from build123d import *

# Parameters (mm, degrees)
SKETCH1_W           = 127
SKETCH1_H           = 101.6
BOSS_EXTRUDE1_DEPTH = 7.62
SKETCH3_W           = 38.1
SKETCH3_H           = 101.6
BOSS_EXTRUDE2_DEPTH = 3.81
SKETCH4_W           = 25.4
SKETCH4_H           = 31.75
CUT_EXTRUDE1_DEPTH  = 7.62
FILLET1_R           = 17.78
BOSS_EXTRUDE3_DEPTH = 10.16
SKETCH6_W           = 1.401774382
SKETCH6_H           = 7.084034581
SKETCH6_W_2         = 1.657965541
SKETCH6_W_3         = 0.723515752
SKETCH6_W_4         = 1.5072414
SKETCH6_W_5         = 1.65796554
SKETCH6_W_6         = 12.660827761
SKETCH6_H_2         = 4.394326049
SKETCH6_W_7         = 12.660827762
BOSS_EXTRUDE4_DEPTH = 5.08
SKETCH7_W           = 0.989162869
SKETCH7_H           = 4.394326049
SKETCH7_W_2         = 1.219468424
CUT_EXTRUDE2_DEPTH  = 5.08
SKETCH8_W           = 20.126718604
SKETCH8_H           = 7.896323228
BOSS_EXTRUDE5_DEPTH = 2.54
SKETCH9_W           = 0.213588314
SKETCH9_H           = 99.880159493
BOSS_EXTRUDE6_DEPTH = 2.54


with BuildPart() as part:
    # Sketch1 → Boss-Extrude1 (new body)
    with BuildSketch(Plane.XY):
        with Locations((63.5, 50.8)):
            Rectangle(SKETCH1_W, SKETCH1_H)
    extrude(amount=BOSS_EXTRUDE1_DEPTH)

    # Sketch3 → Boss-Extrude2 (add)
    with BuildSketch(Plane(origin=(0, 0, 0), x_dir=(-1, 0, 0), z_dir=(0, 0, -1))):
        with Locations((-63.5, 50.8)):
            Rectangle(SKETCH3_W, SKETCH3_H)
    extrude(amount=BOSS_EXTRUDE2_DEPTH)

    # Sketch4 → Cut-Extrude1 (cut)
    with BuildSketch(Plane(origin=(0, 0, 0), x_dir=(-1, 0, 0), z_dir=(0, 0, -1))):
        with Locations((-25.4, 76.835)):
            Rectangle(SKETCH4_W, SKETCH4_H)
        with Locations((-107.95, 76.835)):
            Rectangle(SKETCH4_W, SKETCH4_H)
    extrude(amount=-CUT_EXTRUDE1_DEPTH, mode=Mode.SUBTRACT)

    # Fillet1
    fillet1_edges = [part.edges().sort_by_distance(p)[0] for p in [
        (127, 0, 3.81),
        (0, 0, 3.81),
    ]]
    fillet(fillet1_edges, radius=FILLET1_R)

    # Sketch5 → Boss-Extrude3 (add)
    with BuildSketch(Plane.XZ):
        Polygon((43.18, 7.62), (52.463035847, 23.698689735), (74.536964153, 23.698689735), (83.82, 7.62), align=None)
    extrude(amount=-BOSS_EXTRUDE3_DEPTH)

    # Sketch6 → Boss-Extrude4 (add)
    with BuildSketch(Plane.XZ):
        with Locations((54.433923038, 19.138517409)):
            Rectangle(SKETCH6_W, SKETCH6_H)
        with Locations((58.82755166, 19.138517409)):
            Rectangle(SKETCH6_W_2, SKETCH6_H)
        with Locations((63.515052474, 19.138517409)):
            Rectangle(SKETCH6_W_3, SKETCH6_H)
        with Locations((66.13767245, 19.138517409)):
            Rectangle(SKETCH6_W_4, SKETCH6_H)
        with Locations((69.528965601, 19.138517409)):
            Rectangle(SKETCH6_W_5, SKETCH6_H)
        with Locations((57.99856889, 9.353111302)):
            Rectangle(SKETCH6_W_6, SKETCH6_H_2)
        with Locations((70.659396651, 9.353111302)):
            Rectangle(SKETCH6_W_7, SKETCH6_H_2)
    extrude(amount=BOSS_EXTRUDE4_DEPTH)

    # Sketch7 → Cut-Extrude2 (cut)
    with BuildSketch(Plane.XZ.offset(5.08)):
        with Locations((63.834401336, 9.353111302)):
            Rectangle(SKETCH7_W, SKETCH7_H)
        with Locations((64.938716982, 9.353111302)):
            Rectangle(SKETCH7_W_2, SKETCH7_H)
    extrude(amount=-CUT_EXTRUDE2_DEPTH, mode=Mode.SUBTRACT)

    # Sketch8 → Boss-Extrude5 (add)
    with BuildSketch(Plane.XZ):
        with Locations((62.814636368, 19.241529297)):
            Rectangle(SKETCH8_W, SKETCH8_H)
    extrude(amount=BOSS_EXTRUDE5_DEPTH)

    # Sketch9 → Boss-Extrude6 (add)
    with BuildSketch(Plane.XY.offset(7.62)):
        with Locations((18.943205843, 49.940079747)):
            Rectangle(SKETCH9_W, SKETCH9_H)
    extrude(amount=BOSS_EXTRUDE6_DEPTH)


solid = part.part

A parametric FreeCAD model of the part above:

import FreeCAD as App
import Part
import Sketcher
Q = App.Units.Quantity


def edges_at(feature, points):
    """Names of the edges that pass closest to the given points."""
    edges = feature.Shape.Edges
    near = lambda p: min(range(len(edges)), key=lambda i: edges[i].distToShape(Part.Vertex(*p))[0])
    return sorted({f"Edge{near(p) + 1}" for p in points})

doc = App.newDocument("Part")
params = doc.addObject("Spreadsheet::Sheet", "Params")
for row, (alias, value) in enumerate([
    ("sketch1_width", "5 in"),
    ("sketch1_height", "4 in"),
    ("pad1_length", "0.3 in"),
    ("sketch2_height", "4 in"),
    ("sketch2_width", "1.5 in"),
    ("pad2_length", "0.15 in"),
    ("sketch3_width", "1 in"),
    ("sketch3_height", "1.25 in"),
    ("pocket1_length", "0.3 in"),
    ("fillet_radius", "0.7 in"),
    ("sketch4_width", "1.6 in"),
    ("pad3_length", "0.4 in"),
    ("pad4_length", "0.2 in"),
    ("pocket2_length", "0.2 in"),
    ("pad5_length", "0.1 in"),
    ("pad6_length", "0.1 in"),
], start=1):
    params.set(f"A{row}", alias)
    params.set(f"B{row}", "=" + value)
    params.setAlias(f"B{row}", alias)

body = doc.addObject("PartDesign::Body", "Body")

sketch1 = doc.addObject("Sketcher::SketchObject", "Sketch")
body.addObject(sketch1)
sketch1.AttachmentSupport = (doc.XY_Plane, [""])
sketch1.MapMode = "FlatFace"
sketch1.addGeometry([
    Part.LineSegment(App.Vector(0, 102, 0), App.Vector(0, 0, 0)),
    Part.LineSegment(App.Vector(0, 0, 0), App.Vector(127, 0, 0)),
    Part.LineSegment(App.Vector(127, 0, 0), App.Vector(127, 102, 0)),
    Part.LineSegment(App.Vector(127, 102, 0), App.Vector(0, 102, 0)),
], False)
sketch1.addConstraint([
    Sketcher.Constraint("Coincident", 0, 2, 1, 1),
    Sketcher.Constraint("Coincident", 1, 2, 2, 1),
    Sketcher.Constraint("Coincident", 2, 2, 3, 1),
    Sketcher.Constraint("Coincident", 3, 2, 0, 1),
    Sketcher.Constraint("Vertical", 0),
    Sketcher.Constraint("Horizontal", 1),
    Sketcher.Constraint("Vertical", 2),
    Sketcher.Constraint("Horizontal", 3),
    Sketcher.Constraint("Coincident", 0, 2, -1, 1),
    Sketcher.Constraint("DistanceX", 1, 1, 1, 2, Q("5 in")),
    Sketcher.Constraint("DistanceY", 0, 2, 0, 1, Q("4 in")),
])
sketch1.setExpression("Constraints[9]", "Params.sketch1_width")
sketch1.setExpression("Constraints[10]", "Params.sketch1_height")
pad1 = doc.addObject("PartDesign::Pad", "Pad")
body.addObject(pad1)
pad1.Profile = sketch1
pad1.setExpression("Length", "Params.pad1_length")

sketch2 = doc.addObject("Sketcher::SketchObject", "Sketch001")
body.addObject(sketch2)
sketch2.AttachmentSupport = (doc.XY_Plane, [""])
sketch2.MapMode = "FlatFace"
sketch2.addGeometry([
    Part.LineSegment(App.Vector(83, 102, 0), App.Vector(83, 0, 0)),
    Part.LineSegment(App.Vector(83, 0, 0), App.Vector(44, 0, 0)),
    Part.LineSegment(App.Vector(44, 0, 0), App.Vector(44, 102, 0)),
    Part.LineSegment(App.Vector(44, 102, 0), App.Vector(83, 102, 0)),
], False)
sketch2.addConstraint([
    Sketcher.Constraint("Coincident", 0, 2, 1, 1),
    Sketcher.Constraint("Coincident", 1, 2, 2, 1),
    Sketcher.Constraint("Coincident", 2, 2, 3, 1),
    Sketcher.Constraint("Coincident", 3, 2, 0, 1),
    Sketcher.Constraint("Vertical", 0),
    Sketcher.Constraint("Horizontal", 1),
    Sketcher.Constraint("Vertical", 2),
    Sketcher.Constraint("Horizontal", 3),
    Sketcher.Constraint("PointOnObject", 0, 2, -1),
    Sketcher.Constraint("DistanceY", 0, 2, 0, 1, Q("4 in")),
    Sketcher.Constraint("DistanceX", 1, 2, 1, 1, Q("1.5 in")),
    Sketcher.Constraint("DistanceX", -1, 1, 0, 2, Q("3.25 in")),
])
sketch2.setExpression("Constraints[9]", "Params.sketch2_height")
sketch2.setExpression("Constraints[10]", "Params.sketch2_width")
pad2 = doc.addObject("PartDesign::Pad", "Pad001")
body.addObject(pad2)
pad2.Profile = sketch2
pad2.setExpression("Length", "Params.pad2_length")
pad2.Reversed = True

sketch3 = doc.addObject("Sketcher::SketchObject", "Sketch002")
body.addObject(sketch3)
sketch3.AttachmentSupport = (doc.XY_Plane, [""])
sketch3.MapMode = "FlatFace"
sketch3.addGeometry([
    Part.LineSegment(App.Vector(38, 93, 0), App.Vector(38, 61, 0)),
    Part.LineSegment(App.Vector(38, 61, 0), App.Vector(13, 61, 0)),
    Part.LineSegment(App.Vector(13, 61, 0), App.Vector(13, 93, 0)),
    Part.LineSegment(App.Vector(13, 93, 0), App.Vector(38, 93, 0)),
    Part.LineSegment(App.Vector(121, 93, 0), App.Vector(121, 61, 0)),
    Part.LineSegment(App.Vector(121, 61, 0), App.Vector(95, 61, 0)),
    Part.LineSegment(App.Vector(95, 61, 0), App.Vector(95, 93, 0)),
    Part.LineSegment(App.Vector(95, 93, 0), App.Vector(121, 93, 0)),
], False)
sketch3.addConstraint([
    Sketcher.Constraint("Coincident", 0, 2, 1, 1),
    Sketcher.Constraint("Coincident", 1, 2, 2, 1),
    Sketcher.Constraint("Coincident", 2, 2, 3, 1),
    Sketcher.Constraint("Coincident", 3, 2, 0, 1),
    Sketcher.Constraint("Coincident", 4, 2, 5, 1),
    Sketcher.Constraint("Coincident", 5, 2, 6, 1),
    Sketcher.Constraint("Coincident", 6, 2, 7, 1),
    Sketcher.Constraint("Coincident", 7, 2, 4, 1),
    Sketcher.Constraint("Vertical", 0),
    Sketcher.Constraint("Horizontal", 1),
    Sketcher.Constraint("Vertical", 2),
    Sketcher.Constraint("Horizontal", 3),
    Sketcher.Constraint("Vertical", 4),
    Sketcher.Constraint("Horizontal", 5),
    Sketcher.Constraint("Vertical", 6),
    Sketcher.Constraint("Horizontal", 7),
    Sketcher.Constraint("Horizontal", 1, 2, 4, 2),
    Sketcher.Constraint("Horizontal", 3, 2, 6, 2),
    Sketcher.Constraint("Equal", 3, 5),
    Sketcher.Constraint("DistanceX", 1, 2, 1, 1, Q("1 in")),
    Sketcher.Constraint("DistanceY", 0, 2, 0, 1, Q("1.25 in")),
    Sketcher.Constraint("DistanceX", -1, 1, 0, 2, Q("1.5 in")),
    Sketcher.Constraint("DistanceY", -1, 1, 0, 2, Q("2.4 in")),
    Sketcher.Constraint("DistanceX", -1, 1, 4, 2, Q("4.75 in")),
])
sketch3.setExpression("Constraints[19]", "Params.sketch3_width")
sketch3.setExpression("Constraints[20]", "Params.sketch3_height")
pocket1 = doc.addObject("PartDesign::Pocket", "Pocket")
body.addObject(pocket1)
pocket1.Profile = sketch3
pocket1.setExpression("Length", "Params.pocket1_length")
pocket1.Reversed = True
doc.recompute()

fillet = doc.addObject("PartDesign::Fillet", "Fillet")
body.addObject(fillet)
fillet.Base = (pocket1, edges_at(pocket1, [(127, 0, 3.81), (0, 0, 3.81)]))
fillet.setExpression("Radius", "Params.fillet_radius")

sketch4 = doc.addObject("Sketcher::SketchObject", "Sketch003")
body.addObject(sketch4)
sketch4.AttachmentSupport = (doc.XZ_Plane, [""])
sketch4.MapMode = "FlatFace"
sketch4.addGeometry([
    Part.LineSegment(App.Vector(52, 24, 0), App.Vector(43, 8, 0)),
    Part.LineSegment(App.Vector(43, 8, 0), App.Vector(84, 8, 0)),
    Part.LineSegment(App.Vector(84, 8, 0), App.Vector(75, 24, 0)),
    Part.LineSegment(App.Vector(75, 24, 0), App.Vector(52, 24, 0)),
], False)
sketch4.addConstraint([
    Sketcher.Constraint("Coincident", 0, 2, 1, 1),
    Sketcher.Constraint("Coincident", 1, 2, 2, 1),
    Sketcher.Constraint("Coincident", 2, 2, 3, 1),
    Sketcher.Constraint("Coincident", 3, 2, 0, 1),
    Sketcher.Constraint("Horizontal", 1),
    Sketcher.Constraint("Horizontal", 3),
    Sketcher.Constraint("Equal", 0, 2),
    Sketcher.Constraint("DistanceX", 1, 1, 1, 2, Q("1.6 in")),
    Sketcher.Constraint("Angle", 0, Q("-120 deg")),
    Sketcher.Constraint("DistanceX", -1, 1, 0, 2, Q("1.7 in")),
    Sketcher.Constraint("DistanceY", -1, 1, 0, 2, Q("0.3 in")),
    Sketcher.Constraint("DistanceX", 3, 2, 3, 1, Q("22.073928 mm")),
])
sketch4.setExpression("Constraints[7]", "Params.sketch4_width")
pad3 = doc.addObject("PartDesign::Pad", "Pad002")
body.addObject(pad3)
pad3.Profile = sketch4
pad3.setExpression("Length", "Params.pad3_length")
pad3.Reversed = True

sketch5 = doc.addObject("Sketcher::SketchObject", "Sketch004")
body.addObject(sketch5)
sketch5.AttachmentSupport = (doc.XZ_Plane, [""])
sketch5.MapMode = "FlatFace"
sketch5.addGeometry([
    Part.LineSegment(App.Vector(53.7, 22.7, 0), App.Vector(53.7, 15.6, 0)),
    Part.LineSegment(App.Vector(53.7, 15.6, 0), App.Vector(55.1, 15.6, 0)),
    Part.LineSegment(App.Vector(55.1, 15.6, 0), App.Vector(55.1, 22.7, 0)),
    Part.LineSegment(App.Vector(55.1, 22.7, 0), App.Vector(53.7, 22.7, 0)),
    Part.LineSegment(App.Vector(58, 22.7, 0), App.Vector(58, 15.6, 0)),
    Part.LineSegment(App.Vector(58, 15.6, 0), App.Vector(59.7, 15.6, 0)),
    Part.LineSegment(App.Vector(59.7, 15.6, 0), App.Vector(59.7, 22.7, 0)),
    Part.LineSegment(App.Vector(59.7, 22.7, 0), App.Vector(58, 22.7, 0)),
    Part.LineSegment(App.Vector(63.2, 22.7, 0), App.Vector(63.2, 15.6, 0)),
    Part.LineSegment(App.Vector(63.2, 15.6, 0), App.Vector(63.9, 15.6, 0)),
    Part.LineSegment(App.Vector(63.9, 15.6, 0), App.Vector(63.9, 22.7, 0)),
    Part.LineSegment(App.Vector(63.9, 22.7, 0), App.Vector(63.2, 22.7, 0)),
    Part.LineSegment(App.Vector(65.4, 22.7, 0), App.Vector(65.4, 15.6, 0)),
    Part.LineSegment(App.Vector(65.4, 15.6, 0), App.Vector(66.9, 15.6, 0)),
    Part.LineSegment(App.Vector(66.9, 15.6, 0), App.Vector(66.9, 22.7, 0)),
    Part.LineSegment(App.Vector(66.9, 22.7, 0), App.Vector(65.4, 22.7, 0)),
    Part.LineSegment(App.Vector(68.7, 22.7, 0), App.Vector(68.7, 15.6, 0)),
    Part.LineSegment(App.Vector(68.7, 15.6, 0), App.Vector(70.4, 15.6, 0)),
    Part.LineSegment(App.Vector(70.4, 15.6, 0), App.Vector(70.4, 22.7, 0)),
    Part.LineSegment(App.Vector(70.4, 22.7, 0), App.Vector(68.7, 22.7, 0)),
    Part.LineSegment(App.Vector(51.7, 11.6, 0), App.Vector(51.7, 7.2, 0)),
    Part.LineSegment(App.Vector(51.7, 7.2, 0), App.Vector(77, 7.2, 0)),
    Part.LineSegment(App.Vector(77, 7.2, 0), App.Vector(77, 11.6, 0)),
    Part.LineSegment(App.Vector(77, 11.6, 0), App.Vector(51.7, 11.6, 0)),
], False)
sketch5.addConstraint([
    Sketcher.Constraint("Coincident", 0, 2, 1, 1),
    Sketcher.Constraint("Coincident", 1, 2, 2, 1),
    Sketcher.Constraint("Coincident", 2, 2, 3, 1),
    Sketcher.Constraint("Coincident", 3, 2, 0, 1),
    Sketcher.Constraint("Coincident", 4, 2, 5, 1),
    Sketcher.Constraint("Coincident", 5, 2, 6, 1),
    Sketcher.Constraint("Coincident", 6, 2, 7, 1),
    Sketcher.Constraint("Coincident", 7, 2, 4, 1),
    Sketcher.Constraint("Coincident", 8, 2, 9, 1),
    Sketcher.Constraint("Coincident", 9, 2, 10, 1),
    Sketcher.Constraint("Coincident", 10, 2, 11, 1),
    Sketcher.Constraint("Coincident", 11, 2, 8, 1),
    Sketcher.Constraint("Coincident", 12, 2, 13, 1),
    Sketcher.Constraint("Coincident", 13, 2, 14, 1),
    Sketcher.Constraint("Coincident", 14, 2, 15, 1),
    Sketcher.Constraint("Coincident", 15, 2, 12, 1),
    Sketcher.Constraint("Coincident", 16, 2, 17, 1),
    Sketcher.Constraint("Coincident", 17, 2, 18, 1),
    Sketcher.Constraint("Coincident", 18, 2, 19, 1),
    Sketcher.Constraint("Coincident", 19, 2, 16, 1),
    Sketcher.Constraint("Coincident", 20, 2, 21, 1),
    Sketcher.Constraint("Coincident", 21, 2, 22, 1),
    Sketcher.Constraint("Coincident", 22, 2, 23, 1),
    Sketcher.Constraint("Coincident", 23, 2, 20, 1),
    Sketcher.Constraint("Vertical", 0),
    Sketcher.Constraint("Horizontal", 1),
    Sketcher.Constraint("Vertical", 2),
    Sketcher.Constraint("Horizontal", 3),
    Sketcher.Constraint("Vertical", 4),
    Sketcher.Constraint("Horizontal", 5),
    Sketcher.Constraint("Vertical", 6),
    Sketcher.Constraint("Horizontal", 7),
    Sketcher.Constraint("Vertical", 8),
    Sketcher.Constraint("Horizontal", 9),
    Sketcher.Constraint("Vertical", 10),
    Sketcher.Constraint("Horizontal", 11),
    Sketcher.Constraint("Vertical", 12),
    Sketcher.Constraint("Horizontal", 13),
    Sketcher.Constraint("Vertical", 14),
    Sketcher.Constraint("Horizontal", 15),
    Sketcher.Constraint("Vertical", 16),
    Sketcher.Constraint("Horizontal", 17),
    Sketcher.Constraint("Vertical", 18),
    Sketcher.Constraint("Horizontal", 19),
    Sketcher.Constraint("Vertical", 20),
    Sketcher.Constraint("Horizontal", 21),
    Sketcher.Constraint("Vertical", 22),
    Sketcher.Constraint("Horizontal", 23),
    Sketcher.Constraint("Horizontal", 1, 2, 4, 2),
    Sketcher.Constraint("Horizontal", 3, 2, 6, 2),
    Sketcher.Constraint("Horizontal", 5, 2, 8, 2),
    Sketcher.Constraint("Horizontal", 7, 2, 10, 2),
    Sketcher.Constraint("Horizontal", 9, 2, 12, 2),
    Sketcher.Constraint("Horizontal", 11, 2, 14, 2),
    Sketcher.Constraint("Horizontal", 13, 2, 16, 2),
    Sketcher.Constraint("Horizontal", 15, 2, 18, 2),
    Sketcher.Constraint("Equal", 7, 17),
    Sketcher.Constraint("DistanceX", 13, 1, 13, 2, Q("1.507241 mm")),
    Sketcher.Constraint("DistanceY", -1, 1, 0, 2, Q("15.5965 mm")),
    Sketcher.Constraint("DistanceX", 0, 2, 5, 2, Q("5.923499 mm")),
    Sketcher.Constraint("DistanceX", 1, 2, 9, 2, Q("8.742 mm")),
    Sketcher.Constraint("DistanceX", 8, 2, 13, 2, Q("3.737999 mm")),
    Sketcher.Constraint("DistanceX", 9, 2, 21, 2, Q("13.113 mm")),
    Sketcher.Constraint("DistanceX", 1, 1, 1, 2, Q("1.401774 mm")),
    Sketcher.Constraint("DistanceX", 5, 1, 5, 2, Q("1.657966 mm")),
    Sketcher.Constraint("DistanceX", 9, 1, 9, 2, Q("0.723516 mm")),
    Sketcher.Constraint("DistanceX", 21, 1, 21, 2, Q("25.321656 mm")),
    Sketcher.Constraint("DistanceY", 0, 2, 0, 1, Q("7.084035 mm")),
    Sketcher.Constraint("DistanceY", 20, 2, 20, 1, Q("4.394326 mm")),
    Sketcher.Constraint("DistanceX", -1, 1, 1, 2, Q("55.13481 mm")),
    Sketcher.Constraint("DistanceX", -1, 1, 17, 2, Q("70.357948 mm")),
    Sketcher.Constraint("DistanceY", -1, 1, 20, 2, Q("7.155948 mm")),
])
pad4 = doc.addObject("PartDesign::Pad", "Pad003")
body.addObject(pad4)
pad4.Profile = sketch5
pad4.setExpression("Length", "Params.pad4_length")

sketch6 = doc.addObject("Sketcher::SketchObject", "Sketch005")
body.addObject(sketch6)
sketch6.AttachmentSupport = (doc.XZ_Plane, [""])
sketch6.MapMode = "FlatFace"
sketch6.AttachmentOffset = App.Placement(App.Vector(0, 0, 0.2 * 25.4), App.Rotation())
sketch6.addGeometry([
    Part.LineSegment(App.Vector(63.3, 11.6, 0), App.Vector(63.3, 7.2, 0)),
    Part.LineSegment(App.Vector(63.3, 7.2, 0), App.Vector(65.5, 7.2, 0)),
    Part.LineSegment(App.Vector(65.5, 7.2, 0), App.Vector(65.5, 11.6, 0)),
    Part.LineSegment(App.Vector(65.5, 11.6, 0), App.Vector(63.3, 11.6, 0)),
], False)
sketch6.addConstraint([
    Sketcher.Constraint("Coincident", 0, 2, 1, 1),
    Sketcher.Constraint("Coincident", 1, 2, 2, 1),
    Sketcher.Constraint("Coincident", 2, 2, 3, 1),
    Sketcher.Constraint("Coincident", 3, 2, 0, 1),
    Sketcher.Constraint("Vertical", 0),
    Sketcher.Constraint("Horizontal", 1),
    Sketcher.Constraint("Vertical", 2),
    Sketcher.Constraint("Horizontal", 3),
    Sketcher.Constraint("DistanceX", 1, 1, 1, 2, Q("2.208631 mm")),
    Sketcher.Constraint("DistanceY", 0, 2, 0, 1, Q("4.394326 mm")),
    Sketcher.Constraint("DistanceX", -1, 1, 0, 2, Q("63.33982 mm")),
    Sketcher.Constraint("DistanceY", -1, 1, 0, 2, Q("7.155948 mm")),
])
pocket2 = doc.addObject("PartDesign::Pocket", "Pocket001")
body.addObject(pocket2)
pocket2.Profile = sketch6
pocket2.setExpression("Length", "Params.pocket2_length")

sketch7 = doc.addObject("Sketcher::SketchObject", "Sketch006")
body.addObject(sketch7)
sketch7.AttachmentSupport = (doc.XZ_Plane, [""])
sketch7.MapMode = "FlatFace"
sketch7.addGeometry([
    Part.LineSegment(App.Vector(53, 23, 0), App.Vector(53, 15, 0)),
    Part.LineSegment(App.Vector(53, 15, 0), App.Vector(73, 15, 0)),
    Part.LineSegment(App.Vector(73, 15, 0), App.Vector(73, 23, 0)),
    Part.LineSegment(App.Vector(73, 23, 0), App.Vector(53, 23, 0)),
], False)
sketch7.addConstraint([
    Sketcher.Constraint("Coincident", 0, 2, 1, 1),
    Sketcher.Constraint("Coincident", 1, 2, 2, 1),
    Sketcher.Constraint("Coincident", 2, 2, 3, 1),
    Sketcher.Constraint("Coincident", 3, 2, 0, 1),
    Sketcher.Constraint("Vertical", 0),
    Sketcher.Constraint("Horizontal", 1),
    Sketcher.Constraint("Vertical", 2),
    Sketcher.Constraint("Horizontal", 3),
    Sketcher.Constraint("DistanceX", 1, 1, 1, 2, Q("20.126719 mm")),
    Sketcher.Constraint("DistanceY", 0, 2, 0, 1, Q("7.896323 mm")),
    Sketcher.Constraint("DistanceY", -1, 1, 2, 2, Q("23.189691 mm")),
    Sketcher.Constraint("DistanceX", -1, 1, 0, 2, Q("52.751277 mm")),
])
pad5 = doc.addObject("PartDesign::Pad", "Pad004")
body.addObject(pad5)
pad5.Profile = sketch7
pad5.setExpression("Length", "Params.pad5_length")

sketch8 = doc.addObject("Sketcher::SketchObject", "Sketch007")
body.addObject(sketch8)
sketch8.AttachmentSupport = (doc.XY_Plane, [""])
sketch8.MapMode = "FlatFace"
sketch8.AttachmentOffset = App.Placement(App.Vector(0, 0, 0.3 * 25.4), App.Rotation())
sketch8.addGeometry([
    Part.LineSegment(App.Vector(18.84, 99.88, 0), App.Vector(18.84, 0, 0)),
    Part.LineSegment(App.Vector(18.84, 0, 0), App.Vector(19.05, 0, 0)),
    Part.LineSegment(App.Vector(19.05, 0, 0), App.Vector(19.05, 99.88, 0)),
    Part.LineSegment(App.Vector(19.05, 99.88, 0), App.Vector(18.84, 99.88, 0)),
], False)
sketch8.addConstraint([
    Sketcher.Constraint("Coincident", 0, 2, 1, 1),
    Sketcher.Constraint("Coincident", 1, 2, 2, 1),
    Sketcher.Constraint("Coincident", 2, 2, 3, 1),
    Sketcher.Constraint("Coincident", 3, 2, 0, 1),
    Sketcher.Constraint("Vertical", 0),
    Sketcher.Constraint("Horizontal", 1),
    Sketcher.Constraint("Vertical", 2),
    Sketcher.Constraint("Horizontal", 3),
    Sketcher.Constraint("PointOnObject", 0, 2, -1),
    Sketcher.Constraint("DistanceX", -1, 1, 1, 2, Q("0.75 in")),
    Sketcher.Constraint("DistanceX", 1, 1, 1, 2, Q("0.213588 mm")),
    Sketcher.Constraint("DistanceY", 0, 2, 0, 1, Q("99.880159 mm")),
])
pad6 = doc.addObject("PartDesign::Pad", "Pad005")
body.addObject(pad6)
pad6.Profile = sketch8
pad6.setExpression("Length", "Params.pad6_length")

doc.recompute()
